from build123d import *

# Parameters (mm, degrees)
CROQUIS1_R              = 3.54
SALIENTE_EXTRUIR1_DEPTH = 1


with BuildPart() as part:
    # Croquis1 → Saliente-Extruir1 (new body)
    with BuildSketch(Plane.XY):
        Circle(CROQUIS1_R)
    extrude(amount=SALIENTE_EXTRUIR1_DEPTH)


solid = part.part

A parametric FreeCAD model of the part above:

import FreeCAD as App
import Part
import Sketcher
Q = App.Units.Quantity

doc = App.newDocument("Part")
params = doc.addObject("Spreadsheet::Sheet", "Params")
for row, (alias, value) in enumerate([
    ("sketch1_diameter", "7.08 mm"),
    ("pad1_length", "1 mm"),
], start=1):
    params.set(f"A{row}", alias)
    params.set(f"B{row}", "=" + value)
    params.setAlias(f"B{row}", alias)

body = doc.addObject("PartDesign::Body", "Body")

# Sketch on XY plane
sketch1 = body.newObject("Sketcher::SketchObject", "Sketch")
sketch1.AttachmentSupport = (doc.getObject("XY_Plane"), [""])
sketch1.MapMode = "FlatFace"
sketch1.addGeometry(Part.Circle(App.Vector(0, 0, 0), App.Vector(0, 0, 1), 3.5), False)
sketch1.addConstraint([
    Sketcher.Constraint("Coincident", 0, 3, -1, 1),
    Sketcher.Constraint("Diameter", 0, Q("7.08 mm")),
])
sketch1.setExpression("Constraints[1]", "Params.sketch1_diameter")
pad1 = body.newObject("PartDesign::Pad", "Pad")
pad1.Profile = sketch1
pad1.setExpression("Length", "Params.pad1_length")

doc.recompute()
